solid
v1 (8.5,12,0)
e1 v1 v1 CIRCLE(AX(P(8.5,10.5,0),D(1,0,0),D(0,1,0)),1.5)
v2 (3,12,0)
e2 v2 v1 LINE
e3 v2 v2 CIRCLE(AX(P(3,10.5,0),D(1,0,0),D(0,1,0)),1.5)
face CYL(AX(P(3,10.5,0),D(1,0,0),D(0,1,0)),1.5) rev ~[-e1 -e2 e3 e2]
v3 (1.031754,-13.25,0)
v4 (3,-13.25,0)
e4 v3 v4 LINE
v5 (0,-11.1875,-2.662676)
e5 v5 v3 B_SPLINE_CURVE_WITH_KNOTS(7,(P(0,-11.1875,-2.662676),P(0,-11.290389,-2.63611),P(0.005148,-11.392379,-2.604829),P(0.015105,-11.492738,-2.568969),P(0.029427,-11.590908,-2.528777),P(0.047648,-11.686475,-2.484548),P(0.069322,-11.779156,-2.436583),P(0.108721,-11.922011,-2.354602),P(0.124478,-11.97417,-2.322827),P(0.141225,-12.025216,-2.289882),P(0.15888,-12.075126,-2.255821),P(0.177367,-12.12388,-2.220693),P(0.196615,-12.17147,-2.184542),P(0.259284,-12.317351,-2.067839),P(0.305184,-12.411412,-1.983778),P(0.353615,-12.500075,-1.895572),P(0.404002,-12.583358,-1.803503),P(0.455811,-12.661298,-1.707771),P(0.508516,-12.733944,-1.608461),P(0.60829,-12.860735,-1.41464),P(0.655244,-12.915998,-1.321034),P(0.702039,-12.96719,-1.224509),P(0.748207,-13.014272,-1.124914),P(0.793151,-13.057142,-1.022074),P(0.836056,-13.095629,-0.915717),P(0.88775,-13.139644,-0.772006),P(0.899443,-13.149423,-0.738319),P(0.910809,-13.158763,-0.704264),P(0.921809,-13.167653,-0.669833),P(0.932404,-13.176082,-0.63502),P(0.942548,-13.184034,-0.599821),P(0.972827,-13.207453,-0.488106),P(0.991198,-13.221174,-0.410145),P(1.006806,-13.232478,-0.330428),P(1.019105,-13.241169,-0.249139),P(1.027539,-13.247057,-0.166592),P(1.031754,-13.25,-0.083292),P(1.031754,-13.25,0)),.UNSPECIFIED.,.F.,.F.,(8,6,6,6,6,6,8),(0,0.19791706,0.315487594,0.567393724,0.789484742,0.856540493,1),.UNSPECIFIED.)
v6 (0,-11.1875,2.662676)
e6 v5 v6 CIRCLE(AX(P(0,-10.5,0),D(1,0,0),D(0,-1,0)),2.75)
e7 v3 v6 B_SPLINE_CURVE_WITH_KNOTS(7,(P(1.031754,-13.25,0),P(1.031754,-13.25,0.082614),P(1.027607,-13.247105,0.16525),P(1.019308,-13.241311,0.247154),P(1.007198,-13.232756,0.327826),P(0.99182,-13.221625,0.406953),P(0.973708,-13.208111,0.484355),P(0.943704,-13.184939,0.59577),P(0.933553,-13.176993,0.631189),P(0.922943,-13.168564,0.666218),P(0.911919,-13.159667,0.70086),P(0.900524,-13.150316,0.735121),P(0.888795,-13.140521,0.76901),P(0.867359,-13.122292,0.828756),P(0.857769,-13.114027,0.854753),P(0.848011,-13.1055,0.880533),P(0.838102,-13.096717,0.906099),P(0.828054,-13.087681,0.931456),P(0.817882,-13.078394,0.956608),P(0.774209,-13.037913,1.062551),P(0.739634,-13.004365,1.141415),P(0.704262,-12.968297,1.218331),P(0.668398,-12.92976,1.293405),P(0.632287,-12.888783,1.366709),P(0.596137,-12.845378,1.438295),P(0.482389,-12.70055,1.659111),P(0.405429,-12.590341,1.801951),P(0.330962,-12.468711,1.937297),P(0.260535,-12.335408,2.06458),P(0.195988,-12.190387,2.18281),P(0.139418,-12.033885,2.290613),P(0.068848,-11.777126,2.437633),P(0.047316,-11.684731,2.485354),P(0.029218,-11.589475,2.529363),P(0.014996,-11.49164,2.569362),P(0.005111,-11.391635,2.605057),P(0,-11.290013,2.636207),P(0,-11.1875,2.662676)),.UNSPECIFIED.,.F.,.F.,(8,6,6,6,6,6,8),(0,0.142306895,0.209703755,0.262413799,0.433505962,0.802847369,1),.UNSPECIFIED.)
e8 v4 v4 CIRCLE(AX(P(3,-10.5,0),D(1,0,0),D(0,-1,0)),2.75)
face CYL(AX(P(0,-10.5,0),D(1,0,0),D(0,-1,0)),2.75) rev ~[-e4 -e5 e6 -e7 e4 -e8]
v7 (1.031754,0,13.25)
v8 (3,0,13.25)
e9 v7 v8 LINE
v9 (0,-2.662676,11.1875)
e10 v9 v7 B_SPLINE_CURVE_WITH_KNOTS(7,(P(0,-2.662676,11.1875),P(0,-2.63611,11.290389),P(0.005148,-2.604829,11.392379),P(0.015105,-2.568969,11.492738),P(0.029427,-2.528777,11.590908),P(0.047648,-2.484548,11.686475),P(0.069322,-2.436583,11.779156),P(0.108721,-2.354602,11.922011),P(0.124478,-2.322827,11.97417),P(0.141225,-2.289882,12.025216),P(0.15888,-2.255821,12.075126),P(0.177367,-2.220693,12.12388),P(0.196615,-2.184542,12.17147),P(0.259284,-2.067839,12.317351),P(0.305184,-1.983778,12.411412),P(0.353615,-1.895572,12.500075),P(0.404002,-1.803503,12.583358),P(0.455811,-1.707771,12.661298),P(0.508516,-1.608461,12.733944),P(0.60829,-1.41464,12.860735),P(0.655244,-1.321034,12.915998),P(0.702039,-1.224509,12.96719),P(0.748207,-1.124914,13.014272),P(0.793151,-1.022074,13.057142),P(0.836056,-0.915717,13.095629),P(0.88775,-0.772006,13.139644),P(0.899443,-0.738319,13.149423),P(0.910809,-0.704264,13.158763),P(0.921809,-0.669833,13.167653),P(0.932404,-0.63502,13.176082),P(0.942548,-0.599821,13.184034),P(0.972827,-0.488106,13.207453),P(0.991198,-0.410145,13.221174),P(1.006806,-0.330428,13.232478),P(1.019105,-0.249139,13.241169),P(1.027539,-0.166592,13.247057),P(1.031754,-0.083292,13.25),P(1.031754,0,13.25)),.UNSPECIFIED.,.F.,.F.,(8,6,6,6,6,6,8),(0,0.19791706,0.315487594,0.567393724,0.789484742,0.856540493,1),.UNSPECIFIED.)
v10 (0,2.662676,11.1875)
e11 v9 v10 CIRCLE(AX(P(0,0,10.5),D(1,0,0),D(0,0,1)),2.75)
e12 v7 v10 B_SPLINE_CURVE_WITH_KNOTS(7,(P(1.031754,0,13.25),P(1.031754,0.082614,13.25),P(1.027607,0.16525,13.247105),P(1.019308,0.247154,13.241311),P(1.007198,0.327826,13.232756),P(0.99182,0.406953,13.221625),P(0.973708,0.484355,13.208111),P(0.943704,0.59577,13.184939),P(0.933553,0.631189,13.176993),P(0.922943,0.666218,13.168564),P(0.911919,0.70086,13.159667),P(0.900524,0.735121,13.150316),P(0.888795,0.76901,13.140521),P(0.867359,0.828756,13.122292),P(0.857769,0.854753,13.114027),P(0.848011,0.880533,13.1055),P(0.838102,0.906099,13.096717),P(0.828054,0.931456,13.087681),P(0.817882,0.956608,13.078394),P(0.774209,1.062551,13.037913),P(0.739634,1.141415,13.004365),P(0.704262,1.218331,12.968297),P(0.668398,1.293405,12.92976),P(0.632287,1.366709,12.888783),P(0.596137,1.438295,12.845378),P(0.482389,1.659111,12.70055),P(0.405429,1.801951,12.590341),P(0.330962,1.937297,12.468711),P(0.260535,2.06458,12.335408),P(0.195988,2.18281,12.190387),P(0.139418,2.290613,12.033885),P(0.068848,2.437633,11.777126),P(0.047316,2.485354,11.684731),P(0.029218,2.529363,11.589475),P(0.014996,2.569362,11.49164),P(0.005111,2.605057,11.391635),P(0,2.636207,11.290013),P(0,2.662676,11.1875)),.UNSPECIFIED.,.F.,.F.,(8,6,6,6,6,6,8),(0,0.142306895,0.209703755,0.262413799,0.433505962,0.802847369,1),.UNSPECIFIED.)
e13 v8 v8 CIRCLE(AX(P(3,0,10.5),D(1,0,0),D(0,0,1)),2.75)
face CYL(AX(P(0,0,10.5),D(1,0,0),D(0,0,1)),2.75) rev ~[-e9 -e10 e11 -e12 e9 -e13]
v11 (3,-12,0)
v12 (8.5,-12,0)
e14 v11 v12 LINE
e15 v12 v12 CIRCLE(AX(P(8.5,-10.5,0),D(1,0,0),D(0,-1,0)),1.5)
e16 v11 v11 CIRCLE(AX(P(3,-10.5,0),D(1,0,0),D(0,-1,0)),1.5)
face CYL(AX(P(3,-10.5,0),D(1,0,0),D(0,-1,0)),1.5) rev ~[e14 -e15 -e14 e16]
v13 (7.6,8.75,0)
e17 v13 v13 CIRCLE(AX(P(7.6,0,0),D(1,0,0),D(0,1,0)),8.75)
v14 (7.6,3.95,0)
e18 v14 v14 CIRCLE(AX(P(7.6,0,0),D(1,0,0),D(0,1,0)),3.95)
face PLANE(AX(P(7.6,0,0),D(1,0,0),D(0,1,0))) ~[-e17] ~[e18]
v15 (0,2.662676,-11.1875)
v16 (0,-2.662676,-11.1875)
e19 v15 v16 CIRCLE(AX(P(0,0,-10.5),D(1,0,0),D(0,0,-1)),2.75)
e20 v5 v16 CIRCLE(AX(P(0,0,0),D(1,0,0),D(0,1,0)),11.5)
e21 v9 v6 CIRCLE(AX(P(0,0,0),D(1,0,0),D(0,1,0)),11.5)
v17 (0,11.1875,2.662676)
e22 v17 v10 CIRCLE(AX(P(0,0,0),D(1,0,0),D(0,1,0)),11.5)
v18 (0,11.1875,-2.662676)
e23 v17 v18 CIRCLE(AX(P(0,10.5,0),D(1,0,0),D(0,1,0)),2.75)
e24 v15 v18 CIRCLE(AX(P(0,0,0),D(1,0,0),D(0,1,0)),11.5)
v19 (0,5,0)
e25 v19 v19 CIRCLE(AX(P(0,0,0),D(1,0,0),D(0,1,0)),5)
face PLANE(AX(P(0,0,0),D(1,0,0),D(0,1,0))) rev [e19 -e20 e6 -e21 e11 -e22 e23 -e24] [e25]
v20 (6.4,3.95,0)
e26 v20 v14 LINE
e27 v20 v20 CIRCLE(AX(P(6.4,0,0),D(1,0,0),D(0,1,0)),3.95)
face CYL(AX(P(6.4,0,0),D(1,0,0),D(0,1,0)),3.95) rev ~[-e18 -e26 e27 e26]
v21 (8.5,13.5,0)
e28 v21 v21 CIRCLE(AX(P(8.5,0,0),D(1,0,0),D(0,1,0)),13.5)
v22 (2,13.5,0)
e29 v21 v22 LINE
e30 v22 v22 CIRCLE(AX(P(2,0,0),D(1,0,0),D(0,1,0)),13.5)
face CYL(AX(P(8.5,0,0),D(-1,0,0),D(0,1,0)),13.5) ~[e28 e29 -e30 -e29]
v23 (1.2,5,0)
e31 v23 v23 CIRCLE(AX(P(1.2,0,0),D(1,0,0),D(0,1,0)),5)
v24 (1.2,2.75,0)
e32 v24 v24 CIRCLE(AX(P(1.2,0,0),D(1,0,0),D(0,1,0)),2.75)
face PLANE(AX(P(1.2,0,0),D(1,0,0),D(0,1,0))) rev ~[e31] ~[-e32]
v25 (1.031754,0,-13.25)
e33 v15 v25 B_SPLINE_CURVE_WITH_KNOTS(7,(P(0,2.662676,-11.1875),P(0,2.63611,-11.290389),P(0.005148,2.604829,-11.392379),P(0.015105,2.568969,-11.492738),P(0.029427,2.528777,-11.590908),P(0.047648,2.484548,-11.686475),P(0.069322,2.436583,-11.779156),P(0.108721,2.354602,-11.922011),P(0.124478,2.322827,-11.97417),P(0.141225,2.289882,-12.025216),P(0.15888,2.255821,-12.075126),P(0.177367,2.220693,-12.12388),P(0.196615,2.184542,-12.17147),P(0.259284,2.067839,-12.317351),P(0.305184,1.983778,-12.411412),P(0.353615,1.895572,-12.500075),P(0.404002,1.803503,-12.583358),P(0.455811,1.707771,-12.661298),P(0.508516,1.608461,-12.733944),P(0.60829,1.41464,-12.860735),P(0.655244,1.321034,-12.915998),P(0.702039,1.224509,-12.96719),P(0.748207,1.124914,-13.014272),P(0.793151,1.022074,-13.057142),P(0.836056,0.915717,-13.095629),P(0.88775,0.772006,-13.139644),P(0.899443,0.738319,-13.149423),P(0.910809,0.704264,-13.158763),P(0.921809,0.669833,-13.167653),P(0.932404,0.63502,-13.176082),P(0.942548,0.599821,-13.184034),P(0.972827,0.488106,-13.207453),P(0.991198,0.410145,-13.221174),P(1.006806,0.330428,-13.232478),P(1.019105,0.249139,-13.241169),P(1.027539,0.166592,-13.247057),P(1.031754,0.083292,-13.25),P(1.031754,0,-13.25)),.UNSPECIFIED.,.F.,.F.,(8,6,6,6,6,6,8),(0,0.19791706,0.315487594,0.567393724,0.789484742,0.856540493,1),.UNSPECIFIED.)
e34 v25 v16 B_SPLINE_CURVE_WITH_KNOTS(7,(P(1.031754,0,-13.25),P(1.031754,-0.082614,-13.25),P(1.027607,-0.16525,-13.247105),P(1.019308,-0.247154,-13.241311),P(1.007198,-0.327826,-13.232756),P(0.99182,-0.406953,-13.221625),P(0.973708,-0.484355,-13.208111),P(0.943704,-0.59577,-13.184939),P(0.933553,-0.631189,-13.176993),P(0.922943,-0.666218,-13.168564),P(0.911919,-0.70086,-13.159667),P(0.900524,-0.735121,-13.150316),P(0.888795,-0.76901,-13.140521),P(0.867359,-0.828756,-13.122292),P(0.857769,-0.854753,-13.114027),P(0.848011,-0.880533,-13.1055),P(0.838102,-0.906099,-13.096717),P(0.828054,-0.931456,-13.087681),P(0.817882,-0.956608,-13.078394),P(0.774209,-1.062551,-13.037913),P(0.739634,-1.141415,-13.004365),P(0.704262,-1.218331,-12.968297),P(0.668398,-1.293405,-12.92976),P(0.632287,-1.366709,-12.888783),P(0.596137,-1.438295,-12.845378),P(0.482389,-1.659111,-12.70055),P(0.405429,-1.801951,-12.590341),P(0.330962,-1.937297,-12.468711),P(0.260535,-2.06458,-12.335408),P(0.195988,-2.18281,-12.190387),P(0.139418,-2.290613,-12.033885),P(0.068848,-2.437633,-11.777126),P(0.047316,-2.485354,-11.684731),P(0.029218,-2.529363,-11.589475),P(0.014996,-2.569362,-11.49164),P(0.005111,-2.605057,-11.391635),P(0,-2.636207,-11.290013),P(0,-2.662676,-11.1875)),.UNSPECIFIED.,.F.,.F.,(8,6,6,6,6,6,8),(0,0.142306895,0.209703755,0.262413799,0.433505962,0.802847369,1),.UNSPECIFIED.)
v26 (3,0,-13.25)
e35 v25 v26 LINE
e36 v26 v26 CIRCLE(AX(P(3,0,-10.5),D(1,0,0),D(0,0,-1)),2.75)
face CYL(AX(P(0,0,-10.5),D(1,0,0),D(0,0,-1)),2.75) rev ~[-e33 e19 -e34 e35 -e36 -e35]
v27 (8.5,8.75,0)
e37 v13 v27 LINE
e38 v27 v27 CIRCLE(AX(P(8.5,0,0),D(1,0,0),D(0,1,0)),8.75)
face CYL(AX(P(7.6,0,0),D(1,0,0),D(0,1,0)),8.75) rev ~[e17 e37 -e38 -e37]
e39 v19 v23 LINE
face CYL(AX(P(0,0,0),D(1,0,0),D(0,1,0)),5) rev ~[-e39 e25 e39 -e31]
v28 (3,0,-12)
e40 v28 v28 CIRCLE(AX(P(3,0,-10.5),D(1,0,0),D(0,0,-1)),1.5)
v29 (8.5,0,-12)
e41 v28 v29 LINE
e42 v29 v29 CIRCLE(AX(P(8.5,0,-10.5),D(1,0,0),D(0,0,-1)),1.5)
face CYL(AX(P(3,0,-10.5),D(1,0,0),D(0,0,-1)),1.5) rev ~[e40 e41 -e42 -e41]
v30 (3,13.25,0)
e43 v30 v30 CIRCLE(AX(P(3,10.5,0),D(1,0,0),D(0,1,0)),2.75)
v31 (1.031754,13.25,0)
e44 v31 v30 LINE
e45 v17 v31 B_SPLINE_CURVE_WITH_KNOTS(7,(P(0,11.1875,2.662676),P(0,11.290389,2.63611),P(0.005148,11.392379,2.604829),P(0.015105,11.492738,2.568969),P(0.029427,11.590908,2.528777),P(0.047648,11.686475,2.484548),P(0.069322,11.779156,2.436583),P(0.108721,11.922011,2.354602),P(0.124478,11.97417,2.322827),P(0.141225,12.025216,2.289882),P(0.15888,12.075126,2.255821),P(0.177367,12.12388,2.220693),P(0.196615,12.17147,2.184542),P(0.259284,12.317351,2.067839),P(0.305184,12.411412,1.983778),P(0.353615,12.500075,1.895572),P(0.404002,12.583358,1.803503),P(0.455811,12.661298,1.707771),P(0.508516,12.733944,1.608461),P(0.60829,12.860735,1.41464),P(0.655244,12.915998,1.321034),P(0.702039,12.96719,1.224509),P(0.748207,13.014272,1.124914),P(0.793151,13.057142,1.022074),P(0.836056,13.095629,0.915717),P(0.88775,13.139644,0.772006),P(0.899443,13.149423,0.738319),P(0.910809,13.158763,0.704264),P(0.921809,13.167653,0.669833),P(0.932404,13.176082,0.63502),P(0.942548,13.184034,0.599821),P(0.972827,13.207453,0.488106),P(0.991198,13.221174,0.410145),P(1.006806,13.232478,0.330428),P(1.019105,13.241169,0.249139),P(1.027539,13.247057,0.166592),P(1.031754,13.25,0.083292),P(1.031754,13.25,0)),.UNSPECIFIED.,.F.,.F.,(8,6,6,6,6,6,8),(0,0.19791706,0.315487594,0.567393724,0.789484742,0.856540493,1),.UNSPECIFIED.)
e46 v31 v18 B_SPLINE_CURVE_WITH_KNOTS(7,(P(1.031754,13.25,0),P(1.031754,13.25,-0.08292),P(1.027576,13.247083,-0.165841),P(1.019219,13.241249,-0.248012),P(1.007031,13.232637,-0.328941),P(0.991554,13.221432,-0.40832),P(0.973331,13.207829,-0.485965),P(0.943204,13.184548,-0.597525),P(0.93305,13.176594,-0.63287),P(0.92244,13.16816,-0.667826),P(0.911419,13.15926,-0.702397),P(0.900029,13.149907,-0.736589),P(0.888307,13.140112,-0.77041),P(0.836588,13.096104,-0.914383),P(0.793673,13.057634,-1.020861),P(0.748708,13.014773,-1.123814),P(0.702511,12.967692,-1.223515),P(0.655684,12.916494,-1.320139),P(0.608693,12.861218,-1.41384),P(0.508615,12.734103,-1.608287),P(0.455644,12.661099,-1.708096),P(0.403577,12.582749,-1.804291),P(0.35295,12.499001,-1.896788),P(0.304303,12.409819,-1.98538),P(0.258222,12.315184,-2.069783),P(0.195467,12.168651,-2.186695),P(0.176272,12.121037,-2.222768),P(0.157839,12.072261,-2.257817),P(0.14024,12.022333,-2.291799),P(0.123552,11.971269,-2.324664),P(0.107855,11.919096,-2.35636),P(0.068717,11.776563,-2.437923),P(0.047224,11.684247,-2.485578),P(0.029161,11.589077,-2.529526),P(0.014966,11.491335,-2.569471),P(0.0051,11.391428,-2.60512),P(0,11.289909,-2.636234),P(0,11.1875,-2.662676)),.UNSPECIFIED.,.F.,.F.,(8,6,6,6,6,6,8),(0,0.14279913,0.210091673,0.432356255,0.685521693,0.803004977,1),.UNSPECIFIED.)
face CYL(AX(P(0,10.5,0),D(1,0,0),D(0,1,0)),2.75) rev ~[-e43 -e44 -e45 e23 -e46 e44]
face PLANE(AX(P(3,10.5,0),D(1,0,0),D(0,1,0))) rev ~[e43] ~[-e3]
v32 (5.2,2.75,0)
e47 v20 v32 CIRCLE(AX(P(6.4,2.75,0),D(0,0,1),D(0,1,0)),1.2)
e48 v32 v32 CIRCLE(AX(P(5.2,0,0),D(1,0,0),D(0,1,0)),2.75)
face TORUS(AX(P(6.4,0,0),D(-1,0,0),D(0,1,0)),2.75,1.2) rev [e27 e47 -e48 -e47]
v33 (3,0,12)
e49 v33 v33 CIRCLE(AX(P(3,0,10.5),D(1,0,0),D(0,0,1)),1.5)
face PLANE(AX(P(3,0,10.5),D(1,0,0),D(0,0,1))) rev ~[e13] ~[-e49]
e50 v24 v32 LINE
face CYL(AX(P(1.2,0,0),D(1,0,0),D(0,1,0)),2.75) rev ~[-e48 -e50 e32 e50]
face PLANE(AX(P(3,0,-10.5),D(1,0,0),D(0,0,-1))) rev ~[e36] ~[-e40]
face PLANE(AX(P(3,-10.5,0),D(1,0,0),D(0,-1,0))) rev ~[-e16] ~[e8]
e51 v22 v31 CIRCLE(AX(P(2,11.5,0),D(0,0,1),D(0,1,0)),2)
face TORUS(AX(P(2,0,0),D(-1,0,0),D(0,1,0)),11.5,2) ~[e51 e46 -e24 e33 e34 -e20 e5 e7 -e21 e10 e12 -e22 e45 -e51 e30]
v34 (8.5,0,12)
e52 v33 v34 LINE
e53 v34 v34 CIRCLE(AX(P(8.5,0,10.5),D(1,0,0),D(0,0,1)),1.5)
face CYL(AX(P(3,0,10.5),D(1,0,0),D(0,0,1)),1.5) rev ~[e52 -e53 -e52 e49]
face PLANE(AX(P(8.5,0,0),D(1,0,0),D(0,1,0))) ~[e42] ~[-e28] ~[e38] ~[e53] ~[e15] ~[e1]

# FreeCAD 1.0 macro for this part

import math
import FreeCAD as App
import Part
import Sketcher
from FreeCAD import Vector

doc = App.newDocument("Part")
body = doc.addObject("PartDesign::Body", "Body")

sketch1 = doc.addObject("Sketcher::SketchObject", "Sketch")
body.addObject(sketch1)
sketch1.AttachmentSupport = (doc.XY_Plane, [""])
sketch1.MapMode = "FlatFace"
sketch1.addGeometry([
    Part.LineSegment(Vector(0, 11.5, 0), Vector(0, 5, 0)),
    Part.LineSegment(Vector(0, 5, 0), Vector(1.2, 5, 0)),
    Part.LineSegment(Vector(1.2, 5, 0), Vector(1.2, 2.8, 0)),
    Part.LineSegment(Vector(1.2, 2.8, 0), Vector(5.2, 2.8, 0)),
    Part.ArcOfCircle(Part.Circle(Vector(6.4, 2.8, 0), Vector(0, 0, 1), 1.2), math.radians(90), math.radians(180)),
    Part.LineSegment(Vector(6.4, 4, 0), Vector(7.6, 4, 0)),
    Part.LineSegment(Vector(7.6, 4, 0), Vector(7.6, 8.8, 0)),
    Part.LineSegment(Vector(7.6, 8.8, 0), Vector(8.5, 8.8, 0)),
    Part.LineSegment(Vector(8.5, 8.8, 0), Vector(8.5, 13.5, 0)),
    Part.LineSegment(Vector(8.5, 13.5, 0), Vector(2, 13.5, 0)),
    Part.ArcOfCircle(Part.Circle(Vector(2, 11.5, 0), Vector(0, 0, 1), 2), math.radians(90), math.radians(180)),
], False)
sketch1.addConstraint([
    Sketcher.Constraint("Coincident", 0, 2, 1, 1),
    Sketcher.Constraint("Coincident", 1, 2, 2, 1),
    Sketcher.Constraint("Coincident", 2, 2, 3, 1),
    Sketcher.Constraint("Coincident", 3, 2, 4, 2),
    Sketcher.Constraint("Tangent", 4, 1, 5, 1),
    Sketcher.Constraint("Coincident", 5, 2, 6, 1),
    Sketcher.Constraint("Coincident", 6, 2, 7, 1),
    Sketcher.Constraint("Coincident", 7, 2, 8, 1),
    Sketcher.Constraint("Coincident", 8, 2, 9, 1),
    Sketcher.Constraint("Tangent", 9, 2, 10, 1),
    Sketcher.Constraint("Tangent", 10, 2, 0, 1),
    Sketcher.Constraint("Vertical", 0),
    Sketcher.Constraint("Horizontal", 1),
    Sketcher.Constraint("Vertical", 2),
    Sketcher.Constraint("Horizontal", 3),
    Sketcher.Constraint("Horizontal", 5),
    Sketcher.Constraint("Vertical", 6),
    Sketcher.Constraint("Horizontal", 7),
    Sketcher.Constraint("Vertical", 8),
    Sketcher.Constraint("Horizontal", 9),
    Sketcher.Constraint("PointOnObject", 0, 2, -2),
    Sketcher.Constraint("Horizontal", 4, 3, 2, 2),
    Sketcher.Constraint("Equal", 1, 5),
    Sketcher.Constraint("Equal", 9, 0),
    Sketcher.Constraint("Radius", 10, 2.0),
    Sketcher.Constraint("Radius", 4, 1.2),
    Sketcher.Constraint("DistanceX", 1, 1, 1, 2, 1.2),
    Sketcher.Constraint("DistanceX", 7, 1, 7, 2, 0.9),
    Sketcher.Constraint("DistanceY", -1, 1, 0, 2, 5.0),
    Sketcher.Constraint("DistanceX", -1, 1, 7, 2, 8.5),
    Sketcher.Constraint("DistanceY", -1, 1, 4, 3, 2.75),
    Sketcher.Constraint("DistanceY", -1, 1, 6, 2, 8.75),
])
revolution = doc.addObject("PartDesign::Revolution", "Revolution")
body.addObject(revolution)
revolution.Profile = sketch1
revolution.ReferenceAxis = (sketch1, ["H_Axis"])
revolution.Angle = 360

sketch2 = doc.addObject("Sketcher::SketchObject", "Sketch001")
body.addObject(sketch2)
sketch2.AttachmentSupport = (doc.YZ_Plane, [""])
sketch2.MapMode = "FlatFace"
sketch2.addGeometry(Part.Circle(Vector(0, 10.5, 0), Vector(0, 0, 1), 1.5), False)
sketch2.addConstraint([
    Sketcher.Constraint("PointOnObject", 0, 3, -2),
    Sketcher.Constraint("Diameter", 0, 3.0),
    Sketcher.Constraint("DistanceY", -1, 1, 0, 3, 10.5),
])
doc.recompute()
hole = doc.addObject("PartDesign::Hole", "Hole")
body.addObject(hole)
hole.Profile = sketch2
hole.ThreadType = "None"
hole.Diameter = 3
hole.DepthType = "ThroughAll"
hole.HoleCutType = "Counterbore"
hole.HoleCutDiameter = 5.5
hole.HoleCutDepth = 3
hole.Reversed = True
doc.recompute()

polarpattern = doc.addObject("PartDesign::PolarPattern", "PolarPattern")
body.addObject(polarpattern)
polarpattern.Originals = [hole]
polarpattern.Axis = (doc.X_Axis, [""])
polarpattern.Angle = 360
polarpattern.Occurrences = 4
body.Tip = polarpattern

doc.recompute()
